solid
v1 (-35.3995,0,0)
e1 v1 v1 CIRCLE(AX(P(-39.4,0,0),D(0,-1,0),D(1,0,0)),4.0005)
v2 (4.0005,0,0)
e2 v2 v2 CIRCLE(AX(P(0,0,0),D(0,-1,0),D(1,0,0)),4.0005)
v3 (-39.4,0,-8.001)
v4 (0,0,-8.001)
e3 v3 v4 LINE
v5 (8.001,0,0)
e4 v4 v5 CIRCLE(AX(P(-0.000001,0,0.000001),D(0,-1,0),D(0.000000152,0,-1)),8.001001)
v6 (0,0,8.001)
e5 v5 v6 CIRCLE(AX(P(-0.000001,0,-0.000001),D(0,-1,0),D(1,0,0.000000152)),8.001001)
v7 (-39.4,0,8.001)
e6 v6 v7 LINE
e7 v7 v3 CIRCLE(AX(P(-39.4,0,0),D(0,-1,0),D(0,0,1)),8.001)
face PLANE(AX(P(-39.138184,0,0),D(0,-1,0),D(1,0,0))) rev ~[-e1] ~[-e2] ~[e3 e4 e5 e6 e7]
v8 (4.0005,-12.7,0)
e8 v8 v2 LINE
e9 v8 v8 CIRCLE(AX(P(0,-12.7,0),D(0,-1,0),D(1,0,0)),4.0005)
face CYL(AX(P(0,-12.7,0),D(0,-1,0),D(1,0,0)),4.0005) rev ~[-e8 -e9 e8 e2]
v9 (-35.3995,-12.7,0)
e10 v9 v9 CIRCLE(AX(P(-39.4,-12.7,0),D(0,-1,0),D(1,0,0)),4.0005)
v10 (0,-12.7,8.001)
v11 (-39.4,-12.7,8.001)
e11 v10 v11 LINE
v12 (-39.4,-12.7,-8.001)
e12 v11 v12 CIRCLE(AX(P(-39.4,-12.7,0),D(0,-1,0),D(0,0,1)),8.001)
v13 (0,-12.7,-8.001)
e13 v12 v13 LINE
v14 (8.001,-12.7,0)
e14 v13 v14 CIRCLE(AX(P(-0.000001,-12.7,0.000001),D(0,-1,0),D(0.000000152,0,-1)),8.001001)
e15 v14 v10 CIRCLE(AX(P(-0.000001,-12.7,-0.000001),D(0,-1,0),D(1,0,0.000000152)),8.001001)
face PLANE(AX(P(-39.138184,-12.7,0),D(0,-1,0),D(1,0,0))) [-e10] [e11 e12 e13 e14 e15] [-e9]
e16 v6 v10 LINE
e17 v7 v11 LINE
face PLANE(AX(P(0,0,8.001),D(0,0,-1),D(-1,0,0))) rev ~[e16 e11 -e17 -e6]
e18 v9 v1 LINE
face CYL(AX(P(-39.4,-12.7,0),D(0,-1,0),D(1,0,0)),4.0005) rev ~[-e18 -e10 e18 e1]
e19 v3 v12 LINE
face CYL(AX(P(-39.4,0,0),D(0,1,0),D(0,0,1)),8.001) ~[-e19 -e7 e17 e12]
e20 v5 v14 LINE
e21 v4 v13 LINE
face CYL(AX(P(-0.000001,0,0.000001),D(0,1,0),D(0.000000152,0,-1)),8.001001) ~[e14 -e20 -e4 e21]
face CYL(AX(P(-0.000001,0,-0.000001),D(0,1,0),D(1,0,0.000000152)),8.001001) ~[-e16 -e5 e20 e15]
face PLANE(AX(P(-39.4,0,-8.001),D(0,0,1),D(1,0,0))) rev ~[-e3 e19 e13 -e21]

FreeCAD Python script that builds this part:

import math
import FreeCAD as App
import Part
import Sketcher
from FreeCAD import Vector
Q = App.Units.Quantity

doc = App.newDocument("Part")
body = doc.addObject("PartDesign::Body", "Body")

sketch1 = body.newObject("Sketcher::SketchObject", "Sketch")
sketch1.AttachmentSupport = (doc.getObject("XZ_Plane"), [""])
sketch1.MapMode = "FlatFace"
sketch1.addGeometry(Part.ArcOfCircle(Part.Circle(Vector(-39.4, 0, 0), Vector(0, 0, 1), 8.001), math.radians(90), math.radians(270)), False)
sketch1.addGeometry(Part.LineSegment(Vector(-39.4, -8.001, 0), Vector(0, -8.001, 0)), False)
sketch1.addGeometry(Part.ArcOfCircle(Part.Circle(Vector(-0.000001, 0.000001, 0), Vector(0, 0, 1), 8.001001), math.radians(-89.999991), math.radians(-0.000009)), False)
sketch1.addGeometry(Part.ArcOfCircle(Part.Circle(Vector(-0.000001, -0.000001, 0), Vector(0, 0, 1), 8.001001), math.radians(0.000009), math.radians(89.999991)), False)
sketch1.addGeometry(Part.LineSegment(Vector(0, 8.001, 0), Vector(-39.4, 8.001, 0)), False)
sketch1.addConstraint(Sketcher.Constraint("Tangent", 0, 2, 1, 1))
sketch1.addConstraint(Sketcher.Constraint("Tangent", 1, 2, 2, 1))
sketch1.addConstraint(Sketcher.Constraint("Tangent", 2, 2, 3, 1))
sketch1.addConstraint(Sketcher.Constraint("Tangent", 3, 2, 4, 1))
sketch1.addConstraint(Sketcher.Constraint("Tangent", 4, 2, 0, 1))
sketch1.addConstraint(Sketcher.Constraint("Horizontal", 1))
sketch1.addConstraint(Sketcher.Constraint("Horizontal", 4))
sketch1.addConstraint(Sketcher.Constraint("Coincident", 2, 3, -1, 1))
sketch1.addConstraint(Sketcher.Constraint("Equal", 0, 2))
sketch1.addConstraint(Sketcher.Constraint("PointOnObject", 2, 2, -1))
sketch1.addConstraint(Sketcher.Constraint("Radius", 0, Q("0.315 in")))
sketch1.addConstraint(Sketcher.Constraint("DistanceX", 1, 1, 1, 2, 39.4))
pad1 = body.newObject("PartDesign::Pad", "Pad")
pad1.Profile = sketch1
pad1.Length = Q("0.5 in")

sketch2 = body.newObject("Sketcher::SketchObject", "Sketch001")
sketch2.AttachmentSupport = (doc.getObject("XZ_Plane"), [""])
sketch2.MapMode = "FlatFace"
sketch2.AttachmentOffset = App.Placement(Vector(0, 0, 0.5 * 25.4), App.Rotation())
sketch2.addGeometry(Part.Circle(Vector(-39.4, 0, 0), Vector(0, 0, 1), 4.0005), False)
sketch2.addGeometry(Part.Circle(Vector(0, 0, 0), Vector(0, 0, 1), 4.0005), False)
sketch2.addConstraint(Sketcher.Constraint("Coincident", 1, 3, -1, 1))
sketch2.addConstraint(Sketcher.Constraint("Equal", 0, 1))
sketch2.addConstraint(Sketcher.Constraint("PointOnObject", 0, 3, -1))
sketch2.addConstraint(Sketcher.Constraint("Diameter", 0, Q("0.315 in")))
sketch2.addConstraint(Sketcher.Constraint("DistanceX", 0, 3, -1, 1, 39.4))
pocket1 = body.newObject("PartDesign::Pocket", "Pocket")
pocket1.Profile = sketch2
pocket1.Type = "ThroughAll"

doc.recompute()
